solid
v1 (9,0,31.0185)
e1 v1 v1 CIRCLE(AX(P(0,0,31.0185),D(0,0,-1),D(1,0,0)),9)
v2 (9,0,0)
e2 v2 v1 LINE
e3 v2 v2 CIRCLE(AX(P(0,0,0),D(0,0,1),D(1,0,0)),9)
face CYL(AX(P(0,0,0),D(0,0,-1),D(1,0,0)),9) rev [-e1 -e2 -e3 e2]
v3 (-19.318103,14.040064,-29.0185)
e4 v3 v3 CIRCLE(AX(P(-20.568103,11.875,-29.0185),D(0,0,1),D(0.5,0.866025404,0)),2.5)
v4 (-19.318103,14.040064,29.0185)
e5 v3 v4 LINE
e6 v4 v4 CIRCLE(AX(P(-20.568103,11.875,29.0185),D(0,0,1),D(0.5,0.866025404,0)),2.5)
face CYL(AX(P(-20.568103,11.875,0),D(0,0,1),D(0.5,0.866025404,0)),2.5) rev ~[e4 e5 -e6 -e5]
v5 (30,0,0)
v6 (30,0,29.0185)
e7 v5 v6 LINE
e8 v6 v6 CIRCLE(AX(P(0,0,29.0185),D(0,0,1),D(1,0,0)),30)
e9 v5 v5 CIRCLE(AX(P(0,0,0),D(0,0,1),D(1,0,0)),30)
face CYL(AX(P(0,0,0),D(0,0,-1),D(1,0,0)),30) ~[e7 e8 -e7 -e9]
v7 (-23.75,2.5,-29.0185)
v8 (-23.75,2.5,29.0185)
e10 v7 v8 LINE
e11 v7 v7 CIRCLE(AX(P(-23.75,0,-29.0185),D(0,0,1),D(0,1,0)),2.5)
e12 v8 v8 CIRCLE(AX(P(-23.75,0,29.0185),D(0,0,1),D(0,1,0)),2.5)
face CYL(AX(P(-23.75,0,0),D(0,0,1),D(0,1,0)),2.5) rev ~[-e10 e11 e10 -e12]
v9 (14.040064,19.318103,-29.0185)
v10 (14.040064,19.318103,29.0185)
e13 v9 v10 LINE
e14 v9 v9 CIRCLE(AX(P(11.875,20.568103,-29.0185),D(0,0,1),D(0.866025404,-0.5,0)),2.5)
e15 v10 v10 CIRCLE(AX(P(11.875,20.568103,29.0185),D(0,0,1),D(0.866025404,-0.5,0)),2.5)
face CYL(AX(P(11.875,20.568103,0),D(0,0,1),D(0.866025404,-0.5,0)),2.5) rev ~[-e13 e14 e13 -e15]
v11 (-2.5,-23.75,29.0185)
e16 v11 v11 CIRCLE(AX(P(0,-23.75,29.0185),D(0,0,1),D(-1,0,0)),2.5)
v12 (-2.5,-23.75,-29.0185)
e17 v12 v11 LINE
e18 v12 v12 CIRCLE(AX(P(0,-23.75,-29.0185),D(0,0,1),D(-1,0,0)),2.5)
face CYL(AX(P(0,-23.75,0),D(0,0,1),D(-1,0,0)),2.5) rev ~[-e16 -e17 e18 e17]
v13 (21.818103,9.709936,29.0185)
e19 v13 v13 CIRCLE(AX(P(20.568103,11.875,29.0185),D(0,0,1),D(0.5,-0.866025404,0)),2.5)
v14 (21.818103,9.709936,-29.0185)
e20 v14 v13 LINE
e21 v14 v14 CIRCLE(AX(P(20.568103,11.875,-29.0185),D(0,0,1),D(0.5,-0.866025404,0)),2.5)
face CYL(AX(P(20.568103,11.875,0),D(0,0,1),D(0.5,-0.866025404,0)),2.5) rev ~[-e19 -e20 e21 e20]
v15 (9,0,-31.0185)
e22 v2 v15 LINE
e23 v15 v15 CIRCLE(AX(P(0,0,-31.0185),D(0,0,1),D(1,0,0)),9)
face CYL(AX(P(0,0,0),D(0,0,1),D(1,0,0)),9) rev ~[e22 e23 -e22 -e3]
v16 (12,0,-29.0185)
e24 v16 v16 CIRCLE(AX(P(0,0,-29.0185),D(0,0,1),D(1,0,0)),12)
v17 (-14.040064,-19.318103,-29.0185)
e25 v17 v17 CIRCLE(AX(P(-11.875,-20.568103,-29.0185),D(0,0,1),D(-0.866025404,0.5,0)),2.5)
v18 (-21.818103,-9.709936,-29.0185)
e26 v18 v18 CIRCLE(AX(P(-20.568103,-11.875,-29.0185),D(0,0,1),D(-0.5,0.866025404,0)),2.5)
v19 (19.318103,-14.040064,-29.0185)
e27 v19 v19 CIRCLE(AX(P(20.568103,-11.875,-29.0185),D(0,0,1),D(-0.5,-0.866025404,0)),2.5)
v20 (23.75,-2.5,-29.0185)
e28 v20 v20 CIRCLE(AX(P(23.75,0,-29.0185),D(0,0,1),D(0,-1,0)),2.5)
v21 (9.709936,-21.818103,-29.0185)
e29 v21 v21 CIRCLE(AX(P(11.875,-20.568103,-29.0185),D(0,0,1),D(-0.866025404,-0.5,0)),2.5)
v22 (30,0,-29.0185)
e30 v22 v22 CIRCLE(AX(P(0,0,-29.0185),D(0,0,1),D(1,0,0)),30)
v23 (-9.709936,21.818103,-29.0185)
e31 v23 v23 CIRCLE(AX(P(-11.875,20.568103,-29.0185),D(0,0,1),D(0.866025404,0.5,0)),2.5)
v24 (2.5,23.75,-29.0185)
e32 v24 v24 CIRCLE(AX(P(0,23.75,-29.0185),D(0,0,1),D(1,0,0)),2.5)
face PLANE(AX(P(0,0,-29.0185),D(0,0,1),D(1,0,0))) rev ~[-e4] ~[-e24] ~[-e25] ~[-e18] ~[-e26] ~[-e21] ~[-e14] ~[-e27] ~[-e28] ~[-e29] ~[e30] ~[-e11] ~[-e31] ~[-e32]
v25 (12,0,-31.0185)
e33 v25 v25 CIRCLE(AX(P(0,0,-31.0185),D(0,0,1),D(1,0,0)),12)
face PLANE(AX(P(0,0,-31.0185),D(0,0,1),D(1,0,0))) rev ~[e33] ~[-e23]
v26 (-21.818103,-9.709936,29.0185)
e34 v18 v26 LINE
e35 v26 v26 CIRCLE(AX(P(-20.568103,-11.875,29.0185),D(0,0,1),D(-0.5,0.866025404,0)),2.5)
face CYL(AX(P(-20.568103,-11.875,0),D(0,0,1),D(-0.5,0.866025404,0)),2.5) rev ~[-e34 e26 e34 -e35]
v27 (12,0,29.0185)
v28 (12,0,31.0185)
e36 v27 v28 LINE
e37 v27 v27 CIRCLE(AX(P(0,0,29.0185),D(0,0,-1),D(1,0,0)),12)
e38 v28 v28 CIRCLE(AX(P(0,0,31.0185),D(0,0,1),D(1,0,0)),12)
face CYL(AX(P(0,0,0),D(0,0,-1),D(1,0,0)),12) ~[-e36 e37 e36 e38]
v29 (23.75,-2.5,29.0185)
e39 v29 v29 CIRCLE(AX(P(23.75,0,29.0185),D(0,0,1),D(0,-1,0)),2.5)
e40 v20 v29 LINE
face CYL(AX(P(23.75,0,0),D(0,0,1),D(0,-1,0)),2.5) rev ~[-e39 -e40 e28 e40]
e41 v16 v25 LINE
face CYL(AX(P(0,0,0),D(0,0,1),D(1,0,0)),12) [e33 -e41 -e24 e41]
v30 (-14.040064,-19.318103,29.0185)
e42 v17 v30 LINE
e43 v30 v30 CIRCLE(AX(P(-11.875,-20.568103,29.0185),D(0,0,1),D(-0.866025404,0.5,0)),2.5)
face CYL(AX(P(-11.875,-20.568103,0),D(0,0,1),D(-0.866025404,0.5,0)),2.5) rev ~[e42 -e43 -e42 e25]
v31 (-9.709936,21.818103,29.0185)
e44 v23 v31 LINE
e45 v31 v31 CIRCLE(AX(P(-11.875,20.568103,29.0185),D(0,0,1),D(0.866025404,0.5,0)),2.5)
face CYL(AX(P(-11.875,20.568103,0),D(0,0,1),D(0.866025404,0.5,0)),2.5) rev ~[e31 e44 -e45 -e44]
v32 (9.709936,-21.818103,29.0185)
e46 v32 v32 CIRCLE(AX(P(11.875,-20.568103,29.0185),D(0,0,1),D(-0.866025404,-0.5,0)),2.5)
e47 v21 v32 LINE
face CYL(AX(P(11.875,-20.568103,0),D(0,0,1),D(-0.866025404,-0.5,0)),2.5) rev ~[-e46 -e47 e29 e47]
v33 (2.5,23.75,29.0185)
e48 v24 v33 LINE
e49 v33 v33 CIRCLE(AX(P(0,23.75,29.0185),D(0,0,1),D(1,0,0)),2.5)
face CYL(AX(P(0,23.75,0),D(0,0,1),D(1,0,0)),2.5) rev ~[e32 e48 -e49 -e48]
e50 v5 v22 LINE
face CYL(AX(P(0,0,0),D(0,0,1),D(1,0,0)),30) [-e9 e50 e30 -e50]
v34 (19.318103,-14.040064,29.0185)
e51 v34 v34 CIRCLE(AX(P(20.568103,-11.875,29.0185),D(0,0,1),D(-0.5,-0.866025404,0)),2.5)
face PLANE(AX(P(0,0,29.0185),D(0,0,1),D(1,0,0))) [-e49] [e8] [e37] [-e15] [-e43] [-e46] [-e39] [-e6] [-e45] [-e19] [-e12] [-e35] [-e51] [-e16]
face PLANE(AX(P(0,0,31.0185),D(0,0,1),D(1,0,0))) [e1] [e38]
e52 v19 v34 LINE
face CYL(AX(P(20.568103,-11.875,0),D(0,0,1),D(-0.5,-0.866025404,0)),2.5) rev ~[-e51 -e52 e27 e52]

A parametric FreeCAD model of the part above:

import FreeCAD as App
import Part
import Sketcher
from FreeCAD import Vector
Q = App.Units.Quantity

doc = App.newDocument("Part")
body = doc.addObject("PartDesign::Body", "Body")

# Sketch on XY plane
sketch1 = body.newObject("Sketcher::SketchObject", "Sketch")
sketch1.AttachmentSupport = (doc.getObject("XY_Plane"), [""])
sketch1.MapMode = "FlatFace"
sketch1.addGeometry(Part.Circle(Vector(0, 0, 0), Vector(0, 0, 1), 30), False)
sketch1.addConstraint([
    Sketcher.Constraint("Coincident", 0, 3, -1, 1),
    Sketcher.Constraint("Diameter", 0, Q("60 mm")),
])
pad1 = body.newObject("PartDesign::Pad", "Pad")
pad1.Profile = sketch1
pad1.Length = 58.037
pad1.Midplane = True

# Sketch on XY plane
sketch2 = body.newObject("Sketcher::SketchObject", "Sketch001")
sketch2.AttachmentSupport = (doc.getObject("XY_Plane"), [""])
sketch2.MapMode = "FlatFace"
sketch2.addGeometry(Part.Circle(Vector(0, 0, 0), Vector(0, 0, 1), 12), False)
sketch2.addConstraint([
    Sketcher.Constraint("Coincident", 0, 3, -1, 1),
    Sketcher.Constraint("Diameter", 0, Q("24 mm")),
])
pad2 = body.newObject("PartDesign::Pad", "Pad001")
pad2.Profile = sketch2
pad2.Length = 62.037
pad2.Midplane = True

# Sketch on XY plane
sketch3 = body.newObject("Sketcher::SketchObject", "Sketch002")
sketch3.AttachmentSupport = (doc.getObject("XY_Plane"), [""])
sketch3.MapMode = "FlatFace"
sketch3.addGeometry(Part.Circle(Vector(0, 0, 0), Vector(0, 0, 1), 9), False)
sketch3.addConstraint([
    Sketcher.Constraint("Coincident", 0, 3, -1, 1),
    Sketcher.Constraint("Diameter", 0, Q("18 mm")),
])
pocket1 = body.newObject("PartDesign::Pocket", "Pocket")
pocket1.Profile = sketch3
pocket1.Length = 94.75
pocket1.Midplane = True

# Sketch on XY plane
sketch4 = body.newObject("Sketcher::SketchObject", "Sketch003")
sketch4.AttachmentSupport = (doc.getObject("XY_Plane"), [""])
sketch4.MapMode = "FlatFace"
sketch4.addGeometry(Part.Circle(Vector(0, 23.8, 0), Vector(0, 0, 1), 2.5), False)
sketch4.addConstraint([
    Sketcher.Constraint("PointOnObject", 0, 3, -2),
    Sketcher.Constraint("Diameter", 0, Q("5 mm")),
    Sketcher.Constraint("DistanceY", -1, 1, 0, 3, Q("23.75 mm")),
])
pocket2 = body.newObject("PartDesign::Pocket", "Pocket001")
pocket2.Profile = sketch4
pocket2.Length = 127.5
pocket2.Midplane = True
doc.recompute()

polarpattern = body.newObject("PartDesign::PolarPattern", "PolarPattern")
polarpattern.Originals = [pocket2]
polarpattern.Axis = (doc.getObject("Z_Axis"), [""])
polarpattern.Angle = 360
polarpattern.Occurrences = 12
body.Tip = polarpattern

doc.recompute()
